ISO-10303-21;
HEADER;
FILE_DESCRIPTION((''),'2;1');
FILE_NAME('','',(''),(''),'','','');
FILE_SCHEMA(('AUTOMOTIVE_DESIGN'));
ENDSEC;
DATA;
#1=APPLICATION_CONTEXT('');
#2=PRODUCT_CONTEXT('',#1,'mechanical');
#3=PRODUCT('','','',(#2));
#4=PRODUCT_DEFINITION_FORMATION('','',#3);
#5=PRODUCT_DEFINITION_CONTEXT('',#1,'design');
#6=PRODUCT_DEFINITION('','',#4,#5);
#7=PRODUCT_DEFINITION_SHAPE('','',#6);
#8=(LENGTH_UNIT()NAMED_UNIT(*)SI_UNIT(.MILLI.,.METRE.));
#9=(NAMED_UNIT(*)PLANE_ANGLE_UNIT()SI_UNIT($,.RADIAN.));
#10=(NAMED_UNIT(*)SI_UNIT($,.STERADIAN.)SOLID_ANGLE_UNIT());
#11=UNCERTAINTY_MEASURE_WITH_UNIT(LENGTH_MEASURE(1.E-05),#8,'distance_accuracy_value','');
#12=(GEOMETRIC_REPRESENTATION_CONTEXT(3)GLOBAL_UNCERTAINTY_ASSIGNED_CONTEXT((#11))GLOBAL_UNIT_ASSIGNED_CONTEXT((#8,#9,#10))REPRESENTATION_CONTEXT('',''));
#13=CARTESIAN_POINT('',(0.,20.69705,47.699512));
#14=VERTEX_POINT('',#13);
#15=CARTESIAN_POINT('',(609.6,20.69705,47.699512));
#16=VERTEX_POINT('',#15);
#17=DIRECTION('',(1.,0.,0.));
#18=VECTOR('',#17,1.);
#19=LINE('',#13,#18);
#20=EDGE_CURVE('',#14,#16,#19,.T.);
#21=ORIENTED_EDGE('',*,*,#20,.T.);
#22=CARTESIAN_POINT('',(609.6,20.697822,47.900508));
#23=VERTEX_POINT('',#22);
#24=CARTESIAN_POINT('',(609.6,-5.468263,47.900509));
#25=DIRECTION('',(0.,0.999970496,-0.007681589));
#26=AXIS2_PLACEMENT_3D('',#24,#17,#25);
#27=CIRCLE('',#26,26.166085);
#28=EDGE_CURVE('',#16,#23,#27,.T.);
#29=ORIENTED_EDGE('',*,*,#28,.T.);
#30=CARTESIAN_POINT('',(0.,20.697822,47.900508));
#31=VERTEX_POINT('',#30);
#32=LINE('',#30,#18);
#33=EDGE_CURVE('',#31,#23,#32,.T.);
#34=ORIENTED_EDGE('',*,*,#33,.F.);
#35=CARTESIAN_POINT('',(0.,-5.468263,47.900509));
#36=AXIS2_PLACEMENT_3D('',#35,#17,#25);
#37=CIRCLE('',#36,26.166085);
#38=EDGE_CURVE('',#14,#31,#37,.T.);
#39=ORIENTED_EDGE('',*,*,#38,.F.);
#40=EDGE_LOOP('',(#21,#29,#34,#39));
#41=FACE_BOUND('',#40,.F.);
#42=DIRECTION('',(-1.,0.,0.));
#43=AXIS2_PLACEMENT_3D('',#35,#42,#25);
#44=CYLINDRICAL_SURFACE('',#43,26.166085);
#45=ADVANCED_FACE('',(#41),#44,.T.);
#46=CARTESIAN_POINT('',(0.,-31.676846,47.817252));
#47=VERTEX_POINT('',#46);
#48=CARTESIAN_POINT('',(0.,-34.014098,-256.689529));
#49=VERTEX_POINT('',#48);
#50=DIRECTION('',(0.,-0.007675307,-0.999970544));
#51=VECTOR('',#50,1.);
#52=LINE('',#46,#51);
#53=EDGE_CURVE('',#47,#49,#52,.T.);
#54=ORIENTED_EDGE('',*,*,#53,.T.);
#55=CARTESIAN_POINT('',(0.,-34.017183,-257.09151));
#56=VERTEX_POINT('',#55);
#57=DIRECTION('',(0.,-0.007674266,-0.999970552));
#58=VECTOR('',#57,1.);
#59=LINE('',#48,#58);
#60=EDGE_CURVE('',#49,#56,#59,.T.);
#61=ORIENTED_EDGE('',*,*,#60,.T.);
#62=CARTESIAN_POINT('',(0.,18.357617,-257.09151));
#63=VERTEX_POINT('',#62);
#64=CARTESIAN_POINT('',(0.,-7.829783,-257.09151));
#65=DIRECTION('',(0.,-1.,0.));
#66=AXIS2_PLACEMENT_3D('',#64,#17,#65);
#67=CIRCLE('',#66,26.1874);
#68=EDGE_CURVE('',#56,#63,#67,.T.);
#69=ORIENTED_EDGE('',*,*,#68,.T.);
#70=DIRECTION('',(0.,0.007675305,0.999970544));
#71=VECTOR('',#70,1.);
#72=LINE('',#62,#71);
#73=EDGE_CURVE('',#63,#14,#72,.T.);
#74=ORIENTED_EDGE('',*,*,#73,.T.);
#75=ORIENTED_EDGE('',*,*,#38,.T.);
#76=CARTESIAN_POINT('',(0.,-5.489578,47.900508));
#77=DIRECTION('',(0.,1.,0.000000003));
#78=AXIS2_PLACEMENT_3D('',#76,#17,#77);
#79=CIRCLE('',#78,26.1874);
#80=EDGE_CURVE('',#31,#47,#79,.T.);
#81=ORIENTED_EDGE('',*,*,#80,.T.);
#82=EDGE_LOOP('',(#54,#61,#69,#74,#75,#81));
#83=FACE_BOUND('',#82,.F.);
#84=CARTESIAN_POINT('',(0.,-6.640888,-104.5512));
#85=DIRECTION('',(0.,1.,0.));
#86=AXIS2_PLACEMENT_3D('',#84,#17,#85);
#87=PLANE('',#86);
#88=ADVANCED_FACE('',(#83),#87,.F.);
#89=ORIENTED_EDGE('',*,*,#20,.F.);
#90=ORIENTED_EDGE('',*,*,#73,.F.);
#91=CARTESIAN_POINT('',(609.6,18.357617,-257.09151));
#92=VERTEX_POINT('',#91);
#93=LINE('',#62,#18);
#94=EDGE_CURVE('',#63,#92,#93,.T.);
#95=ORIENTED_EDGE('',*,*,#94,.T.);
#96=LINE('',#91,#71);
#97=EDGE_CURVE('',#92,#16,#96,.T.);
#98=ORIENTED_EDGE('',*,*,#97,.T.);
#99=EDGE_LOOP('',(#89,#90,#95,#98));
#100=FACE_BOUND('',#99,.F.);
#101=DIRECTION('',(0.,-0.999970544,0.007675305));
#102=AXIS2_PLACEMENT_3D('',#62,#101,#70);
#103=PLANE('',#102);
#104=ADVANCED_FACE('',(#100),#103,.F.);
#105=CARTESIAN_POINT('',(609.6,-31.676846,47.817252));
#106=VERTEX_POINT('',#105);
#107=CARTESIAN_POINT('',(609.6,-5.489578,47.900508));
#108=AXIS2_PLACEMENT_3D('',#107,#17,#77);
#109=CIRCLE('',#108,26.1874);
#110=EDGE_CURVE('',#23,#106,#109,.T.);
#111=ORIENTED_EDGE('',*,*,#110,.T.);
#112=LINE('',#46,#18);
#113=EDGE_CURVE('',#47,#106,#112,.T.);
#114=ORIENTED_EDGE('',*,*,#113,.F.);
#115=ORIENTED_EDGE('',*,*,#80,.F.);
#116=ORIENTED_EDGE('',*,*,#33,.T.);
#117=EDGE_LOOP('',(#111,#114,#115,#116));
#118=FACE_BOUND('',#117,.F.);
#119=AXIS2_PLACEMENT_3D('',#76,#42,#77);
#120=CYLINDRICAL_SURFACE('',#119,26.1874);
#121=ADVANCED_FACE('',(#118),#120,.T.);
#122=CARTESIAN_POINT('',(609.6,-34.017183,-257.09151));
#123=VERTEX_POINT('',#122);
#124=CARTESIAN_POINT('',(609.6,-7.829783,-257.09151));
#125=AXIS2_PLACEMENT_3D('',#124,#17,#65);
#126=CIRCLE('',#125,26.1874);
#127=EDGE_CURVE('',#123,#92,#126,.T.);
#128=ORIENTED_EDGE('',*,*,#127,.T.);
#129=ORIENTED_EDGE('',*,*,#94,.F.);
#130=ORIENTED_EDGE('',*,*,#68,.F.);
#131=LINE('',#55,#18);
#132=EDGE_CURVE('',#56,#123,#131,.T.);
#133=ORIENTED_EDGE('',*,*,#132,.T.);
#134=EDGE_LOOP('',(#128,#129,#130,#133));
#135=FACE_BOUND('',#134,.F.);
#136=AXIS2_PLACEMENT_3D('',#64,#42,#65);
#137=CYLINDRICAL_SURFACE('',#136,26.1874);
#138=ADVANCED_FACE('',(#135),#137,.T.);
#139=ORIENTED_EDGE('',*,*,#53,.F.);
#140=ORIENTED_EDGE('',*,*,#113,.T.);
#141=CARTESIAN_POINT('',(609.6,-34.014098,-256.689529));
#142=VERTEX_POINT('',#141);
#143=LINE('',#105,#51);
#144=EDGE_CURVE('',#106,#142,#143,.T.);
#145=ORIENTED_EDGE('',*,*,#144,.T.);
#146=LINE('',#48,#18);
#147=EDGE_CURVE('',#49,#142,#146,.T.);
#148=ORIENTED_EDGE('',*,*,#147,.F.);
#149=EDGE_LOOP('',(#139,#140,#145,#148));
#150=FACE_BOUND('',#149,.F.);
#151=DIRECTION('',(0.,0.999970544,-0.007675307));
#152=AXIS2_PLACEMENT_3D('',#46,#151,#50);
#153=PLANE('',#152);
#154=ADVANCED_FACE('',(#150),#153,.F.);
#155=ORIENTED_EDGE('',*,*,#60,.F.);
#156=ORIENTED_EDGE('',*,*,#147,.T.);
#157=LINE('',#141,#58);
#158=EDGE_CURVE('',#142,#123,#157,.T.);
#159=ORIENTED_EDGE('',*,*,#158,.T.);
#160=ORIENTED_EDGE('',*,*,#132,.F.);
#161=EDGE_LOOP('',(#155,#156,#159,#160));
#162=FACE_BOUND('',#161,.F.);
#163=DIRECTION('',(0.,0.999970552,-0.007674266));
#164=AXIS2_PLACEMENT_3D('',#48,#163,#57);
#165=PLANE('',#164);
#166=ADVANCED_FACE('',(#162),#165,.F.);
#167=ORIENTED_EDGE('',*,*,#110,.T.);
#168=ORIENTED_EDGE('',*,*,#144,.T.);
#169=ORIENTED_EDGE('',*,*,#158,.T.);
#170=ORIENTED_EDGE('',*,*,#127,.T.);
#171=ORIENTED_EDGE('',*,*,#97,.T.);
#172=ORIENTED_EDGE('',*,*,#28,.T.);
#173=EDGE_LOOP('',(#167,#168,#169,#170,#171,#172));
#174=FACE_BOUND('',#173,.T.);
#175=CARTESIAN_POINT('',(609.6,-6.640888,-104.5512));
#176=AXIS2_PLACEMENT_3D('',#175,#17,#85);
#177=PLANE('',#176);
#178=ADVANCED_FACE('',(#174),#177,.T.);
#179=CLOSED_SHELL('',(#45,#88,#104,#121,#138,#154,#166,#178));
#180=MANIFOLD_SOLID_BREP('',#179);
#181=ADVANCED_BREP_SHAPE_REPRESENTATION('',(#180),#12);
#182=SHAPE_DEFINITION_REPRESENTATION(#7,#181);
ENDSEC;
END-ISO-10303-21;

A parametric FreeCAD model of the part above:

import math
import FreeCAD as App
import Part
import Sketcher
from FreeCAD import Vector
Q = App.Units.Quantity

doc = App.newDocument("Part")
body = doc.addObject("PartDesign::Body", "Body")

# Sketch on YZ plane
sketch1 = doc.addObject("Sketcher::SketchObject", "Sketch")
body.addObject(sketch1)
sketch1.AttachmentSupport = (doc.YZ_Plane, [""])
sketch1.MapMode = "FlatFace"
sketch1.addGeometry([
    Part.LineSegment(Vector(-31.676846, 47.817252, 0), Vector(-34.014098, -256.689529, 0)),  # 0
    Part.LineSegment(Vector(-34.014098, -256.689529, 0), Vector(-34.017183, -257.09151, 0)),  # 1
    Part.ArcOfCircle(Part.Circle(Vector(-7.829783, -257.09151, 0), Vector(0, 0, 1), 26.1874), math.radians(180), math.radians(360)),  # 2
    Part.LineSegment(Vector(18.357617, -257.09151, 0), Vector(20.69705, 47.699512, 0)),  # 3
    Part.ArcOfCircle(Part.Circle(Vector(-5.468263, 47.900509, 0), Vector(0, 0, 1), 26.166085), math.radians(-0.440127), math.radians(-0.000002)),  # 4
    Part.ArcOfCircle(Part.Circle(Vector(-5.489578, 47.900508, 0), Vector(0, 0, 1), 26.1874), math.radians(0), math.radians(180.182157)),  # 5
], False)
sketch1.addConstraint([
    Sketcher.Constraint("Coincident", 0, 2, 1, 1),
    Sketcher.Constraint("Coincident", 1, 2, 2, 1),
    Sketcher.Constraint("Coincident", 2, 2, 3, 1),
    Sketcher.Constraint("Coincident", 3, 2, 4, 1),
    Sketcher.Constraint("Coincident", 4, 2, 5, 1),
    Sketcher.Constraint("Coincident", 5, 2, 0, 1),
    Sketcher.Constraint("Distance", 3, Q("12 in")),
    Sketcher.Constraint("Radius", 2, Q("1.031 in")),
    Sketcher.Constraint("Radius", 5, Q("1.031 in")),
    Sketcher.Constraint("Radius", 4, 26.166085),
    Sketcher.Constraint("Distance", 0, 304.515751),
    Sketcher.Constraint("DistanceY", 2, 3, -1, 1, 257.09151),
    Sketcher.Constraint("DistanceY", -1, 1, 4, 3, 47.900509),
    Sketcher.Constraint("DistanceX", 5, 3, -1, 1, 5.489578),
    Sketcher.Constraint("DistanceY", 0, 2, -1, 1, 256.689529),
    Sketcher.Constraint("DistanceY", 1, 2, -1, 1, 257.09151),
    Sketcher.Constraint("DistanceY", 2, 2, -1, 1, 257.09151),
    Sketcher.Constraint("DistanceY", -1, 1, 4, 2, 47.900508),
    Sketcher.Constraint("DistanceX", 2, 3, 4, 3, 2.36152),
    Sketcher.Constraint("DistanceX", 0, 2, 5, 3, 28.52452),
    Sketcher.Constraint("DistanceY", -1, 1, 5, 3, 47.900508),
])
pad1 = doc.addObject("PartDesign::Pad", "Pad")
body.addObject(pad1)
pad1.Profile = sketch1
pad1.Length = Q("24 in")

doc.recompute()
